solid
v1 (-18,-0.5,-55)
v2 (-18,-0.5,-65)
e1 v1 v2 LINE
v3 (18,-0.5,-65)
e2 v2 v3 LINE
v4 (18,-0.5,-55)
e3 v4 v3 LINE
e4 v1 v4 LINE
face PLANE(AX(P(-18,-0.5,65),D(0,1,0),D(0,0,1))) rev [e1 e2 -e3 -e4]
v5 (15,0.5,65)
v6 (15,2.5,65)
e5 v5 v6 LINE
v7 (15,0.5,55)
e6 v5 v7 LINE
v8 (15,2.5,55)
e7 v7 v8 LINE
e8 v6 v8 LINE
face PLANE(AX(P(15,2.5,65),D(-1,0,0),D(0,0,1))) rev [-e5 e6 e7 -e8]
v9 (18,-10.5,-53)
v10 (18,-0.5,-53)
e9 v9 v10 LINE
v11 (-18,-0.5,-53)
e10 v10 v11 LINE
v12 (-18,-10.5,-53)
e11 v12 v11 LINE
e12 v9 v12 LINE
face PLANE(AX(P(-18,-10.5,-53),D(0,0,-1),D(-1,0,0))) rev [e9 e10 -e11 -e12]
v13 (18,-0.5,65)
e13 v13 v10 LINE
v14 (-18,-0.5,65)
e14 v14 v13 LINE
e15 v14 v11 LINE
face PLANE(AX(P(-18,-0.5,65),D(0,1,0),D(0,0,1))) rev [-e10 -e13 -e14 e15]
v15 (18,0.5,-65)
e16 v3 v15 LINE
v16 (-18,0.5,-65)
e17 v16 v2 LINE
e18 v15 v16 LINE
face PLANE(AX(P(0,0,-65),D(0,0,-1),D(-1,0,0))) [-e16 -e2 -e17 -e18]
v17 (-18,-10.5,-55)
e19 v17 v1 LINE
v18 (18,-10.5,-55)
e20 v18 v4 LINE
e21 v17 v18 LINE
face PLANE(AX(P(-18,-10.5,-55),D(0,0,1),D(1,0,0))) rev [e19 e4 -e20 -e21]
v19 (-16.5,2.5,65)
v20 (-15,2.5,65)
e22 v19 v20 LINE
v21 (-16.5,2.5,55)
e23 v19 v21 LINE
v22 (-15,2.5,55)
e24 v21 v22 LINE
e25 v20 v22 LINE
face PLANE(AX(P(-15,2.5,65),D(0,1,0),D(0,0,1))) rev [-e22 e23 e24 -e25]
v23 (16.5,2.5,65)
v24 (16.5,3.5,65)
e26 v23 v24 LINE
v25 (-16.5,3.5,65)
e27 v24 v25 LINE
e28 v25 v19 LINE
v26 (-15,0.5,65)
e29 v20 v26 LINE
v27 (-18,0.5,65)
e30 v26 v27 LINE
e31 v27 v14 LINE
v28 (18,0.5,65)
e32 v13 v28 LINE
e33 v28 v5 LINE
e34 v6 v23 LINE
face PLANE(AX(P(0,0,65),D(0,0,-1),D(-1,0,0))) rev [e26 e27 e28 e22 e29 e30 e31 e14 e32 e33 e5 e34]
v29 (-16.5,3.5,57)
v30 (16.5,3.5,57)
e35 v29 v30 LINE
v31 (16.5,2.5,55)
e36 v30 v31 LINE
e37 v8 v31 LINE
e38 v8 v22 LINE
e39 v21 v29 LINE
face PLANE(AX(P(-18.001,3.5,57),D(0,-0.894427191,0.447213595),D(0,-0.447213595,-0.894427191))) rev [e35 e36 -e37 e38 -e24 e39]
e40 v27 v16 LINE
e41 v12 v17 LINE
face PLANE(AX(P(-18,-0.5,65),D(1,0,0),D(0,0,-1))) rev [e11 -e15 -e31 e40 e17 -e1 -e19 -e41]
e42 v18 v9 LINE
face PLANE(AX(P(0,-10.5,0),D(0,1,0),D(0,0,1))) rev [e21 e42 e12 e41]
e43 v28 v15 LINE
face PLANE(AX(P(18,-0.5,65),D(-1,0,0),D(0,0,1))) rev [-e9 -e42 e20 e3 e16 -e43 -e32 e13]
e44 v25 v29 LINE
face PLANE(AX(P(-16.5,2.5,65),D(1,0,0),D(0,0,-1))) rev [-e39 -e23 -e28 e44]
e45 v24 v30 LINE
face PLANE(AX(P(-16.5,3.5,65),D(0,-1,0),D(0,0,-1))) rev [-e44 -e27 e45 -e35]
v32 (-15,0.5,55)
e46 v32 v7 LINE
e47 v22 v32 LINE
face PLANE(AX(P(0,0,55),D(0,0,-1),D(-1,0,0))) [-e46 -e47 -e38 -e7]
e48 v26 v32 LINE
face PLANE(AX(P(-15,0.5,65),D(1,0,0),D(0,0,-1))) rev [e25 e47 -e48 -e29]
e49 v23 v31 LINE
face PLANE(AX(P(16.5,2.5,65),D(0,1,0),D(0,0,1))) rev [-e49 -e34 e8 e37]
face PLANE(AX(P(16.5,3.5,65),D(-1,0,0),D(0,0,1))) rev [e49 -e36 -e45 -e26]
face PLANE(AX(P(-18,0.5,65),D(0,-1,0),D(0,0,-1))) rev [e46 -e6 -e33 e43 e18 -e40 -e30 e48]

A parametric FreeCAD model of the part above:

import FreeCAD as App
import Part
import Sketcher
from FreeCAD import Vector

doc = App.newDocument("Part")
body = doc.addObject("PartDesign::Body", "Body")

# Sketch on XY plane
sketch1 = doc.addObject("Sketcher::SketchObject", "Sketch")
body.addObject(sketch1)
sketch1.AttachmentSupport = (doc.XY_Plane, [""])
sketch1.MapMode = "FlatFace"
sketch1.addGeometry([
    Part.LineSegment(Vector(-18, 0.5, 0), Vector(-18, -0.5, 0)),
    Part.LineSegment(Vector(-18, -0.5, 0), Vector(18, -0.5, 0)),
    Part.LineSegment(Vector(18, -0.5, 0), Vector(18, 0.5, 0)),
    Part.LineSegment(Vector(18, 0.5, 0), Vector(-18, 0.5, 0)),
], False)
sketch1.addConstraint([
    Sketcher.Constraint("Coincident", 0, 2, 1, 1),
    Sketcher.Constraint("Coincident", 1, 2, 2, 1),
    Sketcher.Constraint("Coincident", 2, 2, 3, 1),
    Sketcher.Constraint("Coincident", 3, 2, 0, 1),
    Sketcher.Constraint("Vertical", 0),
    Sketcher.Constraint("Horizontal", 1),
    Sketcher.Constraint("Vertical", 2),
    Sketcher.Constraint("Horizontal", 3),
    Sketcher.Constraint("Symmetric", 0, 2, 2, 2, -1, 1),
    Sketcher.Constraint("DistanceX", 1, 1, 1, 2, 36.0),
    Sketcher.Constraint("DistanceY", 0, 2, 0, 1, 1.0),
])
pad1 = doc.addObject("PartDesign::Pad", "Pad")
body.addObject(pad1)
pad1.Profile = sketch1
pad1.Length = 130
pad1.Midplane = True

# Sketch on XY plane
sketch2 = doc.addObject("Sketcher::SketchObject", "Sketch001")
body.addObject(sketch2)
sketch2.AttachmentSupport = (doc.XY_Plane, [""])
sketch2.MapMode = "FlatFace"
sketch2.AttachmentOffset = App.Placement(Vector(0, 0, 60), App.Rotation())
sketch2.addGeometry([
    Part.LineSegment(Vector(-15, 2.5, 0), Vector(-15, 0.5, 0)),  # 0
    Part.LineSegment(Vector(-15, 0.5, 0), Vector(15, 0.5, 0)),  # 1
    Part.LineSegment(Vector(15, 0.5, 0), Vector(15, 2.5, 0)),  # 2
    Part.LineSegment(Vector(15, 2.5, 0), Vector(16.5, 2.5, 0)),  # 3
    Part.LineSegment(Vector(16.5, 2.5, 0), Vector(16.5, 3.5, 0)),  # 4
    Part.LineSegment(Vector(16.5, 3.5, 0), Vector(-16.5, 3.5, 0)),  # 5
    Part.LineSegment(Vector(-16.5, 3.5, 0), Vector(-16.5, 2.5, 0)),  # 6
    Part.LineSegment(Vector(-16.5, 2.5, 0), Vector(-15, 2.5, 0)),  # 7
], False)
sketch2.addConstraint([
    Sketcher.Constraint("Coincident", 0, 2, 1, 1),
    Sketcher.Constraint("Coincident", 1, 2, 2, 1),
    Sketcher.Constraint("Coincident", 2, 2, 3, 1),
    Sketcher.Constraint("Coincident", 3, 2, 4, 1),
    Sketcher.Constraint("Coincident", 4, 2, 5, 1),
    Sketcher.Constraint("Coincident", 5, 2, 6, 1),
    Sketcher.Constraint("Coincident", 6, 2, 7, 1),
    Sketcher.Constraint("Coincident", 7, 2, 0, 1),
    Sketcher.Constraint("Vertical", 0),
    Sketcher.Constraint("Horizontal", 1),
    Sketcher.Constraint("Vertical", 2),
    Sketcher.Constraint("Horizontal", 3),
    Sketcher.Constraint("Vertical", 4),
    Sketcher.Constraint("Horizontal", 5),
    Sketcher.Constraint("Vertical", 6),
    Sketcher.Constraint("Horizontal", 7),
    Sketcher.Constraint("Symmetric", 3, 2, 6, 2, -2),
    Sketcher.Constraint("Equal", 3, 7),
    Sketcher.Constraint("DistanceX", 1, 1, 1, 2, 30.0),
    Sketcher.Constraint("DistanceX", 5, 2, 5, 1, 33.0),
    Sketcher.Constraint("DistanceY", 0, 2, 0, 1, 2.0),
    Sketcher.Constraint("DistanceY", 4, 1, 4, 2, 1.0),
    Sketcher.Constraint("DistanceY", -1, 1, 0, 2, 0.5),
])
pad2 = doc.addObject("PartDesign::Pad", "Pad001")
body.addObject(pad2)
pad2.Profile = sketch2
pad2.Length = 10
pad2.Midplane = True

# Sketch on XZ plane
sketch3 = doc.addObject("Sketcher::SketchObject", "Sketch002")
body.addObject(sketch3)
sketch3.AttachmentSupport = (doc.XZ_Plane, [""])
sketch3.MapMode = "FlatFace"
sketch3.AttachmentOffset = App.Placement(Vector(0, 0, 0.5), App.Rotation())
sketch3.addGeometry([
    Part.LineSegment(Vector(-18, -53, 0), Vector(-18, -55, 0)),
    Part.LineSegment(Vector(-18, -55, 0), Vector(18, -55, 0)),
    Part.LineSegment(Vector(18, -55, 0), Vector(18, -53, 0)),
    Part.LineSegment(Vector(18, -53, 0), Vector(-18, -53, 0)),
], False)
sketch3.addConstraint([
    Sketcher.Constraint("Coincident", 0, 2, 1, 1),
    Sketcher.Constraint("Coincident", 1, 2, 2, 1),
    Sketcher.Constraint("Coincident", 2, 2, 3, 1),
    Sketcher.Constraint("Coincident", 3, 2, 0, 1),
    Sketcher.Constraint("Vertical", 0),
    Sketcher.Constraint("Horizontal", 1),
    Sketcher.Constraint("Vertical", 2),
    Sketcher.Constraint("Horizontal", 3),
    Sketcher.Constraint("DistanceX", 1, 1, 1, 2, 36.0),
    Sketcher.Constraint("DistanceY", 0, 2, 0, 1, 2.0),
    Sketcher.Constraint("DistanceX", 0, 2, -1, 1, 18.0),
    Sketcher.Constraint("DistanceY", 0, 2, -1, 1, 55.0),
])
pad3 = doc.addObject("PartDesign::Pad", "Pad002")
body.addObject(pad3)
pad3.Profile = sketch3
pad3.Length = 10

# Sketch on YZ plane
sketch4 = doc.addObject("Sketcher::SketchObject", "Sketch003")
body.addObject(sketch4)
sketch4.AttachmentSupport = (doc.YZ_Plane, [""])
sketch4.MapMode = "FlatFace"
sketch4.AttachmentOffset = App.Placement(Vector(0, 0, 16.5), App.Rotation())
sketch4.addGeometry([
    Part.LineSegment(Vector(3.5, 57, 0), Vector(2.5, 55, 0)),
    Part.LineSegment(Vector(2.5, 55, 0), Vector(3.5, 55, 0)),
    Part.LineSegment(Vector(3.5, 55, 0), Vector(3.5, 57, 0)),
], False)
sketch4.addConstraint([
    Sketcher.Constraint("Coincident", 0, 2, 1, 1),
    Sketcher.Constraint("Coincident", 1, 2, 2, 1),
    Sketcher.Constraint("Coincident", 2, 2, 0, 1),
    Sketcher.Constraint("Horizontal", 1),
    Sketcher.Constraint("Vertical", 2),
    Sketcher.Constraint("DistanceX", 1, 1, 1, 2, 1.0),
    Sketcher.Constraint("DistanceY", 2, 1, 2, 2, 2.0),
    Sketcher.Constraint("DistanceY", -1, 1, 0, 2, 55.0),
    Sketcher.Constraint("DistanceX", -1, 1, 0, 2, 2.5),
])
pocket1 = doc.addObject("PartDesign::Pocket", "Pocket")
body.addObject(pocket1)
pocket1.Profile = sketch4
pocket1.Type = "UpToFirst"

doc.recompute()
